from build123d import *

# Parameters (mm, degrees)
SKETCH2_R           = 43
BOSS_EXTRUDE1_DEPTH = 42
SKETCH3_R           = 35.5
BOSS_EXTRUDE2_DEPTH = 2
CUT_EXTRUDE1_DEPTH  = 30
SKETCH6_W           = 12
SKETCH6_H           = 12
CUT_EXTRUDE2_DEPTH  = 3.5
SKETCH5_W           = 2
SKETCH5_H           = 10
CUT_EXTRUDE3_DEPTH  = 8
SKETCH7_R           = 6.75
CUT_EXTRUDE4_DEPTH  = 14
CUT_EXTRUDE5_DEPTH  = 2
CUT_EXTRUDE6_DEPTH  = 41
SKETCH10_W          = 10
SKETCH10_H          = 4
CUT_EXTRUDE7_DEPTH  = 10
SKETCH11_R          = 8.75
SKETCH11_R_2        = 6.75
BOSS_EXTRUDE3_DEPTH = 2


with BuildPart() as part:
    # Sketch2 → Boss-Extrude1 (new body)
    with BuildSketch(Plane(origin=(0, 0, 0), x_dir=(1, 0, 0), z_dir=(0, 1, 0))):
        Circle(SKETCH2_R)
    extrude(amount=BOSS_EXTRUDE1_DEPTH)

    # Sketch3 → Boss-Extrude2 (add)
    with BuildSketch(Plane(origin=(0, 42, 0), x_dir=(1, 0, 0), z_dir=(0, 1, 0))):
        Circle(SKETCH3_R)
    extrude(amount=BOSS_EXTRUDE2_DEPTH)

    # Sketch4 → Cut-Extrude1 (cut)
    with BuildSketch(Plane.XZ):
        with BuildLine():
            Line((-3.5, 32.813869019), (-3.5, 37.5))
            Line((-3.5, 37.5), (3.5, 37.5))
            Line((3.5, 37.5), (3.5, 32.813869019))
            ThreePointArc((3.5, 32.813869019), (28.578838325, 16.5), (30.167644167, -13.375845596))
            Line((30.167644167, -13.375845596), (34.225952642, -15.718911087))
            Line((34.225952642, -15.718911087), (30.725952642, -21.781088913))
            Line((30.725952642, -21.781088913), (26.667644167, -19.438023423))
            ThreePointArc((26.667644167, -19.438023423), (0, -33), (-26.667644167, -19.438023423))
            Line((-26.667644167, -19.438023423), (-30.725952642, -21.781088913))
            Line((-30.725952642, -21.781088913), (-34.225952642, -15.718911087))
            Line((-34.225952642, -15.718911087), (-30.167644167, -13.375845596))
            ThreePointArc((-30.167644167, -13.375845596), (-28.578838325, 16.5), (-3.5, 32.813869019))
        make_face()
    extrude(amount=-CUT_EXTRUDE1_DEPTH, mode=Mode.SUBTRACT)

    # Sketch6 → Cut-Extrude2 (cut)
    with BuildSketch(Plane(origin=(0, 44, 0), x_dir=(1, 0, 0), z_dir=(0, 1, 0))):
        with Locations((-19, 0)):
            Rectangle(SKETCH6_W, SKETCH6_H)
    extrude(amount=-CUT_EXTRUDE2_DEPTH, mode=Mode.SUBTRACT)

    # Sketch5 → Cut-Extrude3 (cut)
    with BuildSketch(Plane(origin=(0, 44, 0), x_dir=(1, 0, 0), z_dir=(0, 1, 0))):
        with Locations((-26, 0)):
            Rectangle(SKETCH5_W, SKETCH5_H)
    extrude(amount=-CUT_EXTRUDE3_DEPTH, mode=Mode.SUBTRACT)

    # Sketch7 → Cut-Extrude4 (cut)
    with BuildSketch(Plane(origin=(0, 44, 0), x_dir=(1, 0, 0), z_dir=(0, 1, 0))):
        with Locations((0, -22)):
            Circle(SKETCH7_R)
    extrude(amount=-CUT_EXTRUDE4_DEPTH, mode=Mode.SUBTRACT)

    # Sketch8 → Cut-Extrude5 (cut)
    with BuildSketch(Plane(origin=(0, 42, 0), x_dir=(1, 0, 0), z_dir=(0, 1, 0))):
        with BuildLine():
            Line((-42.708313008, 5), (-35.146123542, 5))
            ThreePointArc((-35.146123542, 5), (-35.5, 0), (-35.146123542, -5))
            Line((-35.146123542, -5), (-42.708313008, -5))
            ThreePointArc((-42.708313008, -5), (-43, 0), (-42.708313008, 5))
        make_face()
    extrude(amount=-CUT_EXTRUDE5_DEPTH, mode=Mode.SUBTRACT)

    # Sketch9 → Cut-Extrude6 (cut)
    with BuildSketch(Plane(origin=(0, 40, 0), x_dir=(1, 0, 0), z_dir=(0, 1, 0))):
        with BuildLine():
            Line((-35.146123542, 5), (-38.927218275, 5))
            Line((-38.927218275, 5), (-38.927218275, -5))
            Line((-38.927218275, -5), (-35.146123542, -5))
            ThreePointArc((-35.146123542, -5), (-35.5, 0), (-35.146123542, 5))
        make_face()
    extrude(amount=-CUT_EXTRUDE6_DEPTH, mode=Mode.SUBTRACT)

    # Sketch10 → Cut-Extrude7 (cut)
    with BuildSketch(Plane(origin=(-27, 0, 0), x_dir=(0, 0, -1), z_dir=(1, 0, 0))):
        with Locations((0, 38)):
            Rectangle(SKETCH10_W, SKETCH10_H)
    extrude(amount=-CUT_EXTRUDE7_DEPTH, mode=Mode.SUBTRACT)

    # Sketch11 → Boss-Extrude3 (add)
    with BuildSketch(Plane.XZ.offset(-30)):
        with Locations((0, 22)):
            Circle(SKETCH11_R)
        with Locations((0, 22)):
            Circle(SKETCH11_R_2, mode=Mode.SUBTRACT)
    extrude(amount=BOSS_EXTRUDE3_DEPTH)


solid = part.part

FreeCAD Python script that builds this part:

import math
import FreeCAD as App
import Part
import Sketcher
from FreeCAD import Vector
Q = App.Units.Quantity

doc = App.newDocument("Part")
params = doc.addObject("Spreadsheet::Sheet", "Params")
for row, (alias, value) in enumerate([
    ("sketch1_diameter", "86 mm"),
    ("pad1_length", "42 mm"),
    ("sketch2_diameter", "71 mm"),
    ("pad2_length", "2 mm"),
    ("sketch3_radius", "33 mm"),
    ("sketch3_width", "7 mm"),
    ("sketch3_length", "7 mm"),
    ("pocket1_length", "30 mm"),
    ("sketch4_width", "12 mm"),
    ("pocket2_length", "3.5 mm"),
    ("sketch5_width", "2 mm"),
    ("sketch5_height", "10 mm"),
    ("pocket3_length", "8 mm"),
    ("sketch6_diameter", "13.5 mm"),
    ("pocket4_length", "14 mm"),
    ("sketch7_radius", "43 mm"),
    ("sketch7_radius2", "35.5 mm"),
    ("pocket5_length", "2 mm"),
    ("sketch8_radius", "35.5 mm"),
    ("sketch8_height", "10 mm"),
    ("pocket6_length", "41 mm"),
    ("sketch9_width", "4 mm"),
    ("sketch9_height", "10 mm"),
    ("pocket7_length", "10 mm"),
    ("sketch10_diameter", "17.5 mm"),
    ("sketch10_diameter2", "13.5 mm"),
    ("pad3_length", "2 mm"),
], start=1):
    params.set(f"A{row}", alias)
    params.set(f"B{row}", "=" + value)
    params.setAlias(f"B{row}", alias)

body = doc.addObject("PartDesign::Body", "Body")

# Sketch on XZ plane
sketch1 = body.newObject("Sketcher::SketchObject", "Sketch")
sketch1.AttachmentSupport = (doc.getObject("XZ_Plane"), [""])
sketch1.MapMode = "FlatFace"
sketch1.addGeometry(Part.Circle(Vector(0, 0, 0), Vector(0, 0, 1), 43), False)
sketch1.addConstraint([
    Sketcher.Constraint("Coincident", 0, 3, -1, 1),
    Sketcher.Constraint("Diameter", 0, 86.0),
])
sketch1.setExpression("Constraints[1]", "Params.sketch1_diameter")
pad1 = body.newObject("PartDesign::Pad", "Pad")
pad1.Profile = sketch1
pad1.setExpression("Length", "Params.pad1_length")
pad1.Reversed = True

# Sketch on XZ plane
sketch2 = body.newObject("Sketcher::SketchObject", "Sketch001")
sketch2.AttachmentSupport = (doc.getObject("XZ_Plane"), [""])
sketch2.MapMode = "FlatFace"
sketch2.AttachmentOffset = App.Placement(Vector(0, 0, -42), App.Rotation())
sketch2.addGeometry(Part.Circle(Vector(0, 0, 0), Vector(0, 0, 1), 36), False)
sketch2.addConstraint([
    Sketcher.Constraint("Coincident", 0, 3, -1, 1),
    Sketcher.Constraint("Diameter", 0, 71.0),
])
sketch2.setExpression("Constraints[1]", "Params.sketch2_diameter")
pad2 = body.newObject("PartDesign::Pad", "Pad001")
pad2.Profile = sketch2
pad2.setExpression("Length", "Params.pad2_length")
pad2.Reversed = True

# Sketch on XZ plane
sketch3 = body.newObject("Sketcher::SketchObject", "Sketch002")
sketch3.AttachmentSupport = (doc.getObject("XZ_Plane"), [""])
sketch3.MapMode = "FlatFace"
sketch3.addGeometry([
    Part.LineSegment(Vector(-3.5, 37.5, 0), Vector(-3.5, 32.8, 0)),  # 0
    Part.ArcOfCircle(Part.Circle(Vector(0, 0, 0), Vector(0, 0, 1), 33), math.radians(96), math.radians(204)),  # 1
    Part.LineSegment(Vector(-30.2, -13.4, 0), Vector(-34.2, -15.7, 0)),  # 2
    Part.LineSegment(Vector(-34.2, -15.7, 0), Vector(-30.7, -21.8, 0)),  # 3
    Part.LineSegment(Vector(-30.7, -21.8, 0), Vector(-26.7, -19.4, 0)),  # 4
    Part.ArcOfCircle(Part.Circle(Vector(0, 0, 0), Vector(0, 0, 1), 33), math.radians(-144), math.radians(-36)),  # 5
    Part.LineSegment(Vector(26.7, -19.4, 0), Vector(30.7, -21.8, 0)),  # 6
    Part.LineSegment(Vector(30.7, -21.8, 0), Vector(34.2, -15.7, 0)),  # 7
    Part.LineSegment(Vector(34.2, -15.7, 0), Vector(30.2, -13.4, 0)),  # 8
    Part.ArcOfCircle(Part.Circle(Vector(0, 0, 0), Vector(0, 0, 1), 33), math.radians(-24), math.radians(84)),  # 9
    Part.LineSegment(Vector(3.5, 32.8, 0), Vector(3.5, 37.5, 0)),  # 10
    Part.LineSegment(Vector(3.5, 37.5, 0), Vector(-3.5, 37.5, 0)),  # 11
], False)
sketch3.addConstraint([
    Sketcher.Constraint("Coincident", 0, 2, 1, 1),
    Sketcher.Constraint("Coincident", 1, 2, 2, 1),
    Sketcher.Constraint("Coincident", 2, 2, 3, 1),
    Sketcher.Constraint("Coincident", 3, 2, 4, 1),
    Sketcher.Constraint("Coincident", 4, 2, 5, 1),
    Sketcher.Constraint("Coincident", 5, 2, 6, 1),
    Sketcher.Constraint("Coincident", 6, 2, 7, 1),
    Sketcher.Constraint("Coincident", 7, 2, 8, 1),
    Sketcher.Constraint("Coincident", 8, 2, 9, 1),
    Sketcher.Constraint("Coincident", 9, 2, 10, 1),
    Sketcher.Constraint("Coincident", 10, 2, 11, 1),
    Sketcher.Constraint("Coincident", 11, 2, 0, 1),
    Sketcher.Constraint("Vertical", 0),
    Sketcher.Constraint("Vertical", 10),
    Sketcher.Constraint("Horizontal", 11),
    Sketcher.Constraint("Coincident", 1, 3, -1, 1),
    Sketcher.Constraint("Coincident", 5, 3, -1, 1),
    Sketcher.Constraint("Coincident", 9, 3, -1, 1),
    Sketcher.Constraint("Equal", 1, 5),
    Sketcher.Constraint("Equal", 5, 9),
    Sketcher.Constraint("Symmetric", 3, 2, 6, 2, -2),
    Sketcher.Constraint("Symmetric", 2, 2, 7, 2, -2),
    Sketcher.Constraint("Perpendicular", 2, 3),
    Sketcher.Constraint("Perpendicular", 3, 4),
    Sketcher.Constraint("Perpendicular", 6, 7),
    Sketcher.Constraint("Perpendicular", 7, 8),
    Sketcher.Constraint("Horizontal", 0, 2, 9, 2),
    Sketcher.Constraint("Equal", 2, 4),
    Sketcher.Constraint("Radius", 1, 33.0),
    Sketcher.Constraint("DistanceX", 11, 2, 11, 1, 7.0),
    Sketcher.Constraint("Angle", 2, Q("-150 deg")),
    Sketcher.Constraint("Distance", 3, 7.0),
    Sketcher.Constraint("DistanceY", -1, 1, 10, 2, 37.5),
    Sketcher.Constraint("Distance", 2, 4.686131),
])
sketch3.setExpression("Constraints[28]", "Params.sketch3_radius")
sketch3.setExpression("Constraints[29]", "Params.sketch3_width")
sketch3.setExpression("Constraints[31]", "Params.sketch3_length")
pocket1 = body.newObject("PartDesign::Pocket", "Pocket")
pocket1.Profile = sketch3
pocket1.setExpression("Length", "Params.pocket1_length")

# Sketch on XZ plane
sketch4 = body.newObject("Sketcher::SketchObject", "Sketch003")
sketch4.AttachmentSupport = (doc.getObject("XZ_Plane"), [""])
sketch4.MapMode = "FlatFace"
sketch4.AttachmentOffset = App.Placement(Vector(0, 0, -44), App.Rotation())
sketch4.addGeometry([
    Part.LineSegment(Vector(-25, -6, 0), Vector(-25, 6, 0)),
    Part.LineSegment(Vector(-25, 6, 0), Vector(-13, 6, 0)),
    Part.LineSegment(Vector(-13, 6, 0), Vector(-13, -6, 0)),
    Part.LineSegment(Vector(-13, -6, 0), Vector(-25, -6, 0)),
], False)
sketch4.addConstraint([
    Sketcher.Constraint("Coincident", 0, 2, 1, 1),
    Sketcher.Constraint("Coincident", 1, 2, 2, 1),
    Sketcher.Constraint("Coincident", 2, 2, 3, 1),
    Sketcher.Constraint("Coincident", 3, 2, 0, 1),
    Sketcher.Constraint("Vertical", 0),
    Sketcher.Constraint("Horizontal", 1),
    Sketcher.Constraint("Vertical", 2),
    Sketcher.Constraint("Horizontal", 3),
    Sketcher.Constraint("Equal", 3, 0),
    Sketcher.Constraint("DistanceX", 1, 1, 1, 2, 12.0),
    Sketcher.Constraint("DistanceX", 0, 2, -1, 1, 25.0),
    Sketcher.Constraint("DistanceY", -1, 1, 0, 2, 6.0),
])
sketch4.setExpression("Constraints[9]", "Params.sketch4_width")
pocket2 = body.newObject("PartDesign::Pocket", "Pocket001")
pocket2.Profile = sketch4
pocket2.setExpression("Length", "Params.pocket2_length")
pocket2.Reversed = True

# Sketch on XZ plane
sketch5 = body.newObject("Sketcher::SketchObject", "Sketch004")
sketch5.AttachmentSupport = (doc.getObject("XZ_Plane"), [""])
sketch5.MapMode = "FlatFace"
sketch5.AttachmentOffset = App.Placement(Vector(0, 0, -44), App.Rotation())
sketch5.addGeometry([
    Part.LineSegment(Vector(-27, -5, 0), Vector(-27, 5, 0)),
    Part.LineSegment(Vector(-27, 5, 0), Vector(-25, 5, 0)),
    Part.LineSegment(Vector(-25, 5, 0), Vector(-25, -5, 0)),
    Part.LineSegment(Vector(-25, -5, 0), Vector(-27, -5, 0)),
], False)
sketch5.addConstraint([
    Sketcher.Constraint("Coincident", 0, 2, 1, 1),
    Sketcher.Constraint("Coincident", 1, 2, 2, 1),
    Sketcher.Constraint("Coincident", 2, 2, 3, 1),
    Sketcher.Constraint("Coincident", 3, 2, 0, 1),
    Sketcher.Constraint("Vertical", 0),
    Sketcher.Constraint("Horizontal", 1),
    Sketcher.Constraint("Vertical", 2),
    Sketcher.Constraint("Horizontal", 3),
    Sketcher.Constraint("DistanceX", 1, 1, 1, 2, 2.0),
    Sketcher.Constraint("DistanceY", 0, 1, 0, 2, 10.0),
    Sketcher.Constraint("DistanceX", 0, 2, -1, 1, 27.0),
    Sketcher.Constraint("DistanceY", -1, 1, 0, 2, 5.0),
])
sketch5.setExpression("Constraints[8]", "Params.sketch5_width")
sketch5.setExpression("Constraints[9]", "Params.sketch5_height")
pocket3 = body.newObject("PartDesign::Pocket", "Pocket002")
pocket3.Profile = sketch5
pocket3.setExpression("Length", "Params.pocket3_length")
pocket3.Reversed = True

# Sketch on XZ plane
sketch6 = body.newObject("Sketcher::SketchObject", "Sketch005")
sketch6.AttachmentSupport = (doc.getObject("XZ_Plane"), [""])
sketch6.MapMode = "FlatFace"
sketch6.AttachmentOffset = App.Placement(Vector(0, 0, -44), App.Rotation())
sketch6.addGeometry(Part.Circle(Vector(0, 22, 0), Vector(0, 0, 1), 7), False)
sketch6.addConstraint([
    Sketcher.Constraint("PointOnObject", 0, 3, -2),
    Sketcher.Constraint("Diameter", 0, 13.5),
    Sketcher.Constraint("DistanceY", -1, 1, 0, 3, 22.0),
])
sketch6.setExpression("Constraints[1]", "Params.sketch6_diameter")
pocket4 = body.newObject("PartDesign::Pocket", "Pocket003")
pocket4.Profile = sketch6
pocket4.setExpression("Length", "Params.pocket4_length")
pocket4.Reversed = True

# Sketch on XZ plane
sketch7 = body.newObject("Sketcher::SketchObject", "Sketch006")
sketch7.AttachmentSupport = (doc.getObject("XZ_Plane"), [""])
sketch7.MapMode = "FlatFace"
sketch7.AttachmentOffset = App.Placement(Vector(0, 0, -42), App.Rotation())
sketch7.addGeometry([
    Part.LineSegment(Vector(-35, -5, 0), Vector(-43, -5, 0)),
    Part.ArcOfCircle(Part.Circle(Vector(0, 0, 0), Vector(0, 0, 1), 43), math.radians(173.32), math.radians(186.68)),
    Part.LineSegment(Vector(-43, 5, 0), Vector(-35, 5, 0)),
    Part.ArcOfCircle(Part.Circle(Vector(0, 0, 0), Vector(0, 0, 1), 36), math.radians(171.9), math.radians(188.1)),
], False)
sketch7.addConstraint([
    Sketcher.Constraint("Coincident", 0, 2, 1, 2),
    Sketcher.Constraint("Coincident", 1, 1, 2, 1),
    Sketcher.Constraint("Coincident", 2, 2, 3, 1),
    Sketcher.Constraint("Coincident", 3, 2, 0, 1),
    Sketcher.Constraint("Horizontal", 0),
    Sketcher.Constraint("Horizontal", 2),
    Sketcher.Constraint("Coincident", 1, 3, -1, 1),
    Sketcher.Constraint("Coincident", 3, 3, -1, 1),
    Sketcher.Constraint("Vertical", 0, 2, 1, 1),
    Sketcher.Constraint("Radius", 1, 43.0),
    Sketcher.Constraint("Radius", 3, 35.5),
    Sketcher.Constraint("DistanceY", 0, 2, -1, 1, 5.0),
])
sketch7.setExpression("Constraints[9]", "Params.sketch7_radius")
sketch7.setExpression("Constraints[10]", "Params.sketch7_radius2")
pocket5 = body.newObject("PartDesign::Pocket", "Pocket004")
pocket5.Profile = sketch7
pocket5.setExpression("Length", "Params.pocket5_length")
pocket5.Reversed = True

# Sketch on XZ plane
sketch8 = body.newObject("Sketcher::SketchObject", "Sketch007")
sketch8.AttachmentSupport = (doc.getObject("XZ_Plane"), [""])
sketch8.MapMode = "FlatFace"
sketch8.AttachmentOffset = App.Placement(Vector(0, 0, -40), App.Rotation())
sketch8.addGeometry([
    Part.LineSegment(Vector(-35.1, -5, 0), Vector(-38.9, -5, 0)),
    Part.LineSegment(Vector(-38.9, -5, 0), Vector(-38.9, 5, 0)),
    Part.LineSegment(Vector(-38.9, 5, 0), Vector(-35.1, 5, 0)),
    Part.ArcOfCircle(Part.Circle(Vector(0, 0, 0), Vector(0, 0, 1), 35.5), math.radians(171.9), math.radians(188.1)),
], False)
sketch8.addConstraint([
    Sketcher.Constraint("Coincident", 0, 2, 1, 1),
    Sketcher.Constraint("Coincident", 1, 2, 2, 1),
    Sketcher.Constraint("Coincident", 2, 2, 3, 1),
    Sketcher.Constraint("Coincident", 3, 2, 0, 1),
    Sketcher.Constraint("Horizontal", 0),
    Sketcher.Constraint("Vertical", 1),
    Sketcher.Constraint("Horizontal", 2),
    Sketcher.Constraint("Coincident", 3, 3, -1, 1),
    Sketcher.Constraint("Vertical", 2, 2, 3, 2),
    Sketcher.Constraint("Radius", 3, 35.5),
    Sketcher.Constraint("DistanceY", 1, 1, 1, 2, 10.0),
    Sketcher.Constraint("DistanceX", 0, 2, 0, 1, 3.781095),
])
sketch8.setExpression("Constraints[9]", "Params.sketch8_radius")
sketch8.setExpression("Constraints[10]", "Params.sketch8_height")
pocket6 = body.newObject("PartDesign::Pocket", "Pocket005")
pocket6.Profile = sketch8
pocket6.setExpression("Length", "Params.pocket6_length")
pocket6.Reversed = True

# Sketch on YZ plane
sketch9 = body.newObject("Sketcher::SketchObject", "Sketch008")
sketch9.AttachmentSupport = (doc.getObject("YZ_Plane"), [""])
sketch9.MapMode = "FlatFace"
sketch9.AttachmentOffset = App.Placement(Vector(0, 0, -27), App.Rotation())
sketch9.addGeometry([
    Part.LineSegment(Vector(40, 5, 0), Vector(36, 5, 0)),
    Part.LineSegment(Vector(36, 5, 0), Vector(36, -5, 0)),
    Part.LineSegment(Vector(36, -5, 0), Vector(40, -5, 0)),
    Part.LineSegment(Vector(40, -5, 0), Vector(40, 5, 0)),
], False)
sketch9.addConstraint([
    Sketcher.Constraint("Coincident", 0, 2, 1, 1),
    Sketcher.Constraint("Coincident", 1, 2, 2, 1),
    Sketcher.Constraint("Coincident", 2, 2, 3, 1),
    Sketcher.Constraint("Coincident", 3, 2, 0, 1),
    Sketcher.Constraint("Horizontal", 0),
    Sketcher.Constraint("Vertical", 1),
    Sketcher.Constraint("Horizontal", 2),
    Sketcher.Constraint("Vertical", 3),
    Sketcher.Constraint("DistanceX", 0, 2, 0, 1, 4.0),
    Sketcher.Constraint("DistanceY", 1, 2, 1, 1, 10.0),
    Sketcher.Constraint("DistanceX", -1, 1, 0, 2, 36.0),
    Sketcher.Constraint("DistanceY", -1, 1, 0, 2, 5.0),
])
sketch9.setExpression("Constraints[8]", "Params.sketch9_width")
sketch9.setExpression("Constraints[9]", "Params.sketch9_height")
pocket7 = body.newObject("PartDesign::Pocket", "Pocket006")
pocket7.Profile = sketch9
pocket7.setExpression("Length", "Params.pocket7_length")

# Sketch on XZ plane
sketch10 = body.newObject("Sketcher::SketchObject", "Sketch009")
sketch10.AttachmentSupport = (doc.getObject("XZ_Plane"), [""])
sketch10.MapMode = "FlatFace"
sketch10.AttachmentOffset = App.Placement(Vector(0, 0, -30), App.Rotation())
sketch10.addGeometry([
    Part.Circle(Vector(0, 22, 0), Vector(0, 0, 1), 9),
    Part.Circle(Vector(0, 22, 0), Vector(0, 0, 1), 7),
], False)
sketch10.addConstraint([
    Sketcher.Constraint("Coincident", 1, 3, 0, 3),
    Sketcher.Constraint("PointOnObject", 0, 3, -2),
    Sketcher.Constraint("Diameter", 0, 17.5),
    Sketcher.Constraint("Diameter", 1, 13.5),
    Sketcher.Constraint("DistanceY", -1, 1, 0, 3, 22.0),
])
sketch10.setExpression("Constraints[2]", "Params.sketch10_diameter")
sketch10.setExpression("Constraints[3]", "Params.sketch10_diameter2")
pad3 = body.newObject("PartDesign::Pad", "Pad002")
pad3.Profile = sketch10
pad3.setExpression("Length", "Params.pad3_length")

doc.recompute()
